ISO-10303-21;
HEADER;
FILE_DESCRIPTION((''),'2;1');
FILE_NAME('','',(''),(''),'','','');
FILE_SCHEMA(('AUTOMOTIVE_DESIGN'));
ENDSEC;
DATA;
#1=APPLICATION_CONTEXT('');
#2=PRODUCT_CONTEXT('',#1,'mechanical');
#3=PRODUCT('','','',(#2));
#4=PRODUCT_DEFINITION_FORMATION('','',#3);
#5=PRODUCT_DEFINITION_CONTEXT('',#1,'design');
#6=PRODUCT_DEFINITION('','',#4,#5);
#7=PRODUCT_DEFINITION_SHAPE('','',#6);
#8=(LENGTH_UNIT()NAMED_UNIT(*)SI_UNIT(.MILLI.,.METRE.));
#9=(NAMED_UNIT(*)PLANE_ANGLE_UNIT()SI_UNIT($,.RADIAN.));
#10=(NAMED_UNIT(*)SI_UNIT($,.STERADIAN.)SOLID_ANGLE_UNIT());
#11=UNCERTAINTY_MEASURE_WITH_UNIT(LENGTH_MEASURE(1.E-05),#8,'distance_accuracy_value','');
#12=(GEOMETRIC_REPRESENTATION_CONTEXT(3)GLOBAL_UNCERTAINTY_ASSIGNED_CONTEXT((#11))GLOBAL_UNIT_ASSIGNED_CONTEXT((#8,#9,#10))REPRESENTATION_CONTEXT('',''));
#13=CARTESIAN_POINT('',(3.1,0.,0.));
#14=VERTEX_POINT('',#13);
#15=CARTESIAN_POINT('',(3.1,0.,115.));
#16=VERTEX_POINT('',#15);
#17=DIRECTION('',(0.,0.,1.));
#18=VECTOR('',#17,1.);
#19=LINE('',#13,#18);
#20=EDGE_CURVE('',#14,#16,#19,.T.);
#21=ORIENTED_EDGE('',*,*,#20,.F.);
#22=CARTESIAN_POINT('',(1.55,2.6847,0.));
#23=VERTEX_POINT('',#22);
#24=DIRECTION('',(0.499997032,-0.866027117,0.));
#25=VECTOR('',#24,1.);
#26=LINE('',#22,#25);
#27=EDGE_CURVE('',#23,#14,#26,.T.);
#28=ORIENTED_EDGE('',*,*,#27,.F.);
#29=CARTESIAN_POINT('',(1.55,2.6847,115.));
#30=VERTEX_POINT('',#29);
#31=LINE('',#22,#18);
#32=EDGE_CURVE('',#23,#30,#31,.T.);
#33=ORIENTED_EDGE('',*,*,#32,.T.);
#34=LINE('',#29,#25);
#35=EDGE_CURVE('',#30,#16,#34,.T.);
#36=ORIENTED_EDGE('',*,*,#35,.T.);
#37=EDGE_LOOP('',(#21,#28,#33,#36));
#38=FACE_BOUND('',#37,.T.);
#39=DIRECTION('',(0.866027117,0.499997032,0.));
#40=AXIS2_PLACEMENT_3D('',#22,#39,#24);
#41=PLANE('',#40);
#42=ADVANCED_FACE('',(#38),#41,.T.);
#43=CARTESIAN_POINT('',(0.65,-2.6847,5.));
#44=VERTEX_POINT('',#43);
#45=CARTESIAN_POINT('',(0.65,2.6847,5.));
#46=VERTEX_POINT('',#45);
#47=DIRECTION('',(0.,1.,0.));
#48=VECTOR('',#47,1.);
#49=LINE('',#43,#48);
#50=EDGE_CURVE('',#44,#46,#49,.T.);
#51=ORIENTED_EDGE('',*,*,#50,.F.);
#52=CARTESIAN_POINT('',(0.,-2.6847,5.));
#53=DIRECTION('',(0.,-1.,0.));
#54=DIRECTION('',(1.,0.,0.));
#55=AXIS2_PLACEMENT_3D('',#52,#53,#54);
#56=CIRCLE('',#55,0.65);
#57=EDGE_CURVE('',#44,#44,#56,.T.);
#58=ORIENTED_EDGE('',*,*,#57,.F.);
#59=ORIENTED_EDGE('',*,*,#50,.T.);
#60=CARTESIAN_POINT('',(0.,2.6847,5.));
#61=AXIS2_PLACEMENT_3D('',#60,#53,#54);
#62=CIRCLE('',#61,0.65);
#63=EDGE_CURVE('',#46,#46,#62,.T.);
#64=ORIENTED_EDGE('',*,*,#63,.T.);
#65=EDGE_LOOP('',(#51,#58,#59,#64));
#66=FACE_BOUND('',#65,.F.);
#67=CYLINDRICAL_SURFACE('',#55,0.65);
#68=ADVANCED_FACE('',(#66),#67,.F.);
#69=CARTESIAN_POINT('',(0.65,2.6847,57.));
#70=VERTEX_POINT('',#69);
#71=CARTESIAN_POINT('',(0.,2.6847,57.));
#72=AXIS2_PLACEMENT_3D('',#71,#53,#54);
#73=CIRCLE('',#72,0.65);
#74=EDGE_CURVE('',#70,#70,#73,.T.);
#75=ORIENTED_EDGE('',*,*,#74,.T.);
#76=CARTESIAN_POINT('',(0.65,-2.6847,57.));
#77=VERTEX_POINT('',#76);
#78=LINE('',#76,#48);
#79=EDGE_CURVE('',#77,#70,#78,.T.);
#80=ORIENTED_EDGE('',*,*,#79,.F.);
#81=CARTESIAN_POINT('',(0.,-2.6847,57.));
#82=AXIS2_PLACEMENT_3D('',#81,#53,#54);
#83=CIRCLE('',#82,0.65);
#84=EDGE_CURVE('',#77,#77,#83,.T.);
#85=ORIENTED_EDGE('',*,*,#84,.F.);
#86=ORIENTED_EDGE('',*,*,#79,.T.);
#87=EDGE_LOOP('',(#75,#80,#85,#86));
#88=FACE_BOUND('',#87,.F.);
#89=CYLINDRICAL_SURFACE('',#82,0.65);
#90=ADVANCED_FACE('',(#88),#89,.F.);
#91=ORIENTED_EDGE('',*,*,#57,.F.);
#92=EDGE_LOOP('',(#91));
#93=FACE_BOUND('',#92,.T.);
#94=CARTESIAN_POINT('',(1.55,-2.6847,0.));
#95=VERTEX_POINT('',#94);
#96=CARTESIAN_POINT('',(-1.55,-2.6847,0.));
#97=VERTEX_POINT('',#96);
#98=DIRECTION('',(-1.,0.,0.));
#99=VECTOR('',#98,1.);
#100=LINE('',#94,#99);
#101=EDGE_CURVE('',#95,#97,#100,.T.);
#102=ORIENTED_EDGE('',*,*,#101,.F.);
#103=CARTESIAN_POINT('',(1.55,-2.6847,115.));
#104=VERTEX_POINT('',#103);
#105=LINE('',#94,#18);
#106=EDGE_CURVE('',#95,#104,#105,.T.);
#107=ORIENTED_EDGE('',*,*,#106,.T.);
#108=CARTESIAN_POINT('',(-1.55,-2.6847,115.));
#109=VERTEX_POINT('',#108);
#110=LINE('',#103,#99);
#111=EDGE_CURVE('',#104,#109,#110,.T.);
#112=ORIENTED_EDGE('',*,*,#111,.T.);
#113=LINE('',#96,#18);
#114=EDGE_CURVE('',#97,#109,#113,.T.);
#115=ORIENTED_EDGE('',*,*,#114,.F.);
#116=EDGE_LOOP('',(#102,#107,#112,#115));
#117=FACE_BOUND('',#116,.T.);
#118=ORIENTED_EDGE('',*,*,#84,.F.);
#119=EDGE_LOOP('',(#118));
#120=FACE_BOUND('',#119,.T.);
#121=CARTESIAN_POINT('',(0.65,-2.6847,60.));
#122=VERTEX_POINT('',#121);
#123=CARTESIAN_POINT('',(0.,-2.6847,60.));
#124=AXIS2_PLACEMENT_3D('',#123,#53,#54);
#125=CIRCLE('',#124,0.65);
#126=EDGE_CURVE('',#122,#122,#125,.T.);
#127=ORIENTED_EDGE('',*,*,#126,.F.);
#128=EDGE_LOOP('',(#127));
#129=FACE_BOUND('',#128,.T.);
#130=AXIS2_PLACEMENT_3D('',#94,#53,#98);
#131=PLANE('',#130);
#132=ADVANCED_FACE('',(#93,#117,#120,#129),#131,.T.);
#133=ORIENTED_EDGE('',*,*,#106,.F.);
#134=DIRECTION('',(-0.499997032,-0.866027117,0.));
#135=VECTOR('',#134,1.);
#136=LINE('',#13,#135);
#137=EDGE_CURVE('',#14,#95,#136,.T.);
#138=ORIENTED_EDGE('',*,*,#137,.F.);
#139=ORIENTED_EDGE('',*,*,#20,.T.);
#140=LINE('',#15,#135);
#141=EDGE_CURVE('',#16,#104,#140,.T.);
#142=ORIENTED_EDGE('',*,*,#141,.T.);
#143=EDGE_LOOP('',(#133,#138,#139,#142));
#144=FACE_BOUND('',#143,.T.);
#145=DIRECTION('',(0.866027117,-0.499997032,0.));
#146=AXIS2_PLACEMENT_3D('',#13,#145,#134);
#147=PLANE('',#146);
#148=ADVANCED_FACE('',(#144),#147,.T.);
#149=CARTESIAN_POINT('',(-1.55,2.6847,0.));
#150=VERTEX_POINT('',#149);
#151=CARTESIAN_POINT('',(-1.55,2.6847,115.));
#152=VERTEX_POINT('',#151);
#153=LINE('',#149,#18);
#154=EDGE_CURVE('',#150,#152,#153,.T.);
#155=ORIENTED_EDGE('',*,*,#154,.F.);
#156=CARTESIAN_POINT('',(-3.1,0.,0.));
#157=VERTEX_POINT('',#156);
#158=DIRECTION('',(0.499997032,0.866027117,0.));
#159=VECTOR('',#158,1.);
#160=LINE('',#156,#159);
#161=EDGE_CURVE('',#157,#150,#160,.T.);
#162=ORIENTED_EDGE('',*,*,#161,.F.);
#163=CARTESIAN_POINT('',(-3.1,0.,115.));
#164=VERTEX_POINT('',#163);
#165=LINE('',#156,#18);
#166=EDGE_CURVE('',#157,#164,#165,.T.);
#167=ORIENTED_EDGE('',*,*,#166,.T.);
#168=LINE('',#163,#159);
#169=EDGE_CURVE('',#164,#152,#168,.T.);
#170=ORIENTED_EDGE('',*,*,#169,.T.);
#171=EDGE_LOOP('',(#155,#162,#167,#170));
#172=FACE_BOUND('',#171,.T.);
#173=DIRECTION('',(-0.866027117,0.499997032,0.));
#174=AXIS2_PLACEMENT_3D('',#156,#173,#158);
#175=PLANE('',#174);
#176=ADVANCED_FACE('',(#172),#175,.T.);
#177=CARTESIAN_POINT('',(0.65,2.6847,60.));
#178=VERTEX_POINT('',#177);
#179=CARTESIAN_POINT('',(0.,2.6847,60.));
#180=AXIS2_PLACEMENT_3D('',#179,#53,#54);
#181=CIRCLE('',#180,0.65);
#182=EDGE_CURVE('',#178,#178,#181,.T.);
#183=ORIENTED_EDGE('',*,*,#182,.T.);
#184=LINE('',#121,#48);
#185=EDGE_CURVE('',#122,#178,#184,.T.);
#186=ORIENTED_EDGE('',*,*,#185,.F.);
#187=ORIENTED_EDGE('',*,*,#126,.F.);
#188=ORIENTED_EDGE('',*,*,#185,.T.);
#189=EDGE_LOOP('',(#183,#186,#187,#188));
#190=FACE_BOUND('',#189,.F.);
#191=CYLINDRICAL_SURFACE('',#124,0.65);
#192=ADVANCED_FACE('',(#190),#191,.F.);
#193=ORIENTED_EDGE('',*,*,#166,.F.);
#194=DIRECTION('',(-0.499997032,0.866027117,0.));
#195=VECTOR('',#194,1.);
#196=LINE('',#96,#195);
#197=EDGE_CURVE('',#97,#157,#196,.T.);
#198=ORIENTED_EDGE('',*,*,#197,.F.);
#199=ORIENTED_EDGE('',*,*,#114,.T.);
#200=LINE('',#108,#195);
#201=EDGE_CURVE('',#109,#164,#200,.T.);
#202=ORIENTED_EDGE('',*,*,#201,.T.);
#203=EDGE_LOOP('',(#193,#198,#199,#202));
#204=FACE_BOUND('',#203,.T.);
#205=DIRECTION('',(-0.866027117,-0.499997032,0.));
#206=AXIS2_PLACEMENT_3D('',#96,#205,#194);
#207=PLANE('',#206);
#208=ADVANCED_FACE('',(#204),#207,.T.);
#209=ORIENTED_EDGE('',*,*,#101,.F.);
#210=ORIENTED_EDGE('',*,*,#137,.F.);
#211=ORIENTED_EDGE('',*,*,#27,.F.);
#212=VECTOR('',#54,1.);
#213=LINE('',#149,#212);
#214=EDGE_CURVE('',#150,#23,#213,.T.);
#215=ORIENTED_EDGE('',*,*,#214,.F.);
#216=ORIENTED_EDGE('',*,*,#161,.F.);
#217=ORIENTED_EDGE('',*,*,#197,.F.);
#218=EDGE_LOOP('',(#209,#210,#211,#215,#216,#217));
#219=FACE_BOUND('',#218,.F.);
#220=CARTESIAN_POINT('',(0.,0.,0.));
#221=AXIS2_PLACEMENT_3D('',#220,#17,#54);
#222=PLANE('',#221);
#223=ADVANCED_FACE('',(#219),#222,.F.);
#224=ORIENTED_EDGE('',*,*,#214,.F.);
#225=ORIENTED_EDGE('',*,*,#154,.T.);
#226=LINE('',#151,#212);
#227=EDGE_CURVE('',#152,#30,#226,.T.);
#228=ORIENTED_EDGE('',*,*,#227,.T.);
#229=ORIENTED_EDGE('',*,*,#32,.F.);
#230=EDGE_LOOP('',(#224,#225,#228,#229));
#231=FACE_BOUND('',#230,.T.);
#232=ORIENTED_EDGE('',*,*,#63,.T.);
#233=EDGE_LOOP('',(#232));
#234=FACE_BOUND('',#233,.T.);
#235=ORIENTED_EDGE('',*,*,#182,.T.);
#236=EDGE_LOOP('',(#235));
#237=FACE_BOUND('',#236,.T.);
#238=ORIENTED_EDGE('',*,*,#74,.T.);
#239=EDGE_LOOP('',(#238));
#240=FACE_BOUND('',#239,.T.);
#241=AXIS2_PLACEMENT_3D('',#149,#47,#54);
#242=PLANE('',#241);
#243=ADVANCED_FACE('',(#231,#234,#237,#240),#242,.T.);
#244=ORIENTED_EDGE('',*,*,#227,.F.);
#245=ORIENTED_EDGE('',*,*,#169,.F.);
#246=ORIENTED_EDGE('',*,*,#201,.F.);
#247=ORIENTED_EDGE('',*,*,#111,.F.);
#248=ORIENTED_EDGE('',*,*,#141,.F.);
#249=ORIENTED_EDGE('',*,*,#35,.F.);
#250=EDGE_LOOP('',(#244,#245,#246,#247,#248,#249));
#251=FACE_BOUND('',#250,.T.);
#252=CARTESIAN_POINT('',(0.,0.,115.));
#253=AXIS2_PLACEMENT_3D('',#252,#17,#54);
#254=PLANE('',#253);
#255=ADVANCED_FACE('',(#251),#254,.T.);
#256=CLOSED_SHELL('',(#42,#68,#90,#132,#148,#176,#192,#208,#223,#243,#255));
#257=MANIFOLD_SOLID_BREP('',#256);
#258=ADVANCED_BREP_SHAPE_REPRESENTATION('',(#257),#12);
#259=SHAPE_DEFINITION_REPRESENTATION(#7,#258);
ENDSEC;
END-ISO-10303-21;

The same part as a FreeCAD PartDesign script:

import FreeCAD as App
import Part
import Sketcher
Q = App.Units.Quantity


def add_polygon(sketch, points):
    """Adds a closed chain of lines whose ends are joined by coincident constraints."""
    first, n = sketch.GeometryCount, len(points)
    for a, b in zip(points, points[1:] + points[:1]):
        sketch.addGeometry(Part.LineSegment(App.Vector(*a, 0), App.Vector(*b, 0)), False)
    for i in range(n):
        sketch.addConstraint(Sketcher.Constraint("Coincident", first + i, 2, first + (i + 1) % n, 1))

doc = App.newDocument("Part")
params = doc.addObject("Spreadsheet::Sheet", "Params")
for row, (alias, value) in enumerate([
    ("sketch1_width", "3.1 mm"),
    ("sketch1_length", "3.1 mm"),
    ("pad1_length", "115 mm"),
    ("sketch2_diameter", "1.3 mm"),
    ("pocket1_length", "10 mm"),
], start=1):
    params.set(f"A{row}", alias)
    params.set(f"B{row}", "=" + value)
    params.setAlias(f"B{row}", alias)

body = doc.addObject("PartDesign::Body", "Body")

# Sketch on XY plane
sketch1 = doc.addObject("Sketcher::SketchObject", "Sketch")
body.addObject(sketch1)
sketch1.AttachmentSupport = (doc.XY_Plane, [""])
sketch1.MapMode = "FlatFace"
add_polygon(sketch1, [(1.6, 2.7), (-1.6, 2.7), (-3.1, 0), (-1.6, -2.7), (1.6, -2.7), (3.1, 0)])  # lines 0-5
sketch1.addConstraint(Sketcher.Constraint("Horizontal", 0))
sketch1.addConstraint(Sketcher.Constraint("Horizontal", 3))
sketch1.addConstraint(Sketcher.Constraint("Symmetric", 0, 2, 3, 2, -1, 1))
sketch1.addConstraint(Sketcher.Constraint("Symmetric", 1, 2, 4, 2, -1, 1))
sketch1.addConstraint(Sketcher.Constraint("PointOnObject", 1, 2, -1))
sketch1.addConstraint(Sketcher.Constraint("Parallel", 2, 5))
sketch1.addConstraint(Sketcher.Constraint("Vertical", 0, 2, 2, 2))
sketch1.addConstraint(Sketcher.Constraint("DistanceX", 0, 2, 0, 1, Q("3.1 mm")))
sketch1.addConstraint(Sketcher.Constraint("Distance", 1, Q("3.1 mm")))
sketch1.addConstraint(Sketcher.Constraint("DistanceX", 1, 2, -1, 1, Q("3.1 mm")))
sketch1.setExpression("Constraints[13]", "Params.sketch1_width")
sketch1.setExpression("Constraints[14]", "Params.sketch1_length")
pad1 = doc.addObject("PartDesign::Pad", "Pad")
body.addObject(pad1)
pad1.Profile = sketch1
pad1.setExpression("Length", "Params.pad1_length")

# Sketch on XZ plane
sketch2 = doc.addObject("Sketcher::SketchObject", "Sketch001")
body.addObject(sketch2)
sketch2.AttachmentSupport = (doc.XZ_Plane, [""])
sketch2.MapMode = "FlatFace"
sketch2.AttachmentOffset = App.Placement(App.Vector(0, 0, 2.6847), App.Rotation())
sketch2.addGeometry(Part.Circle(App.Vector(0, 5, 0), App.Vector(0, 0, 1), 0.7), False)
sketch2.addGeometry(Part.Circle(App.Vector(0, 60, 0), App.Vector(0, 0, 1), 0.7), False)
sketch2.addGeometry(Part.Circle(App.Vector(0, 57, 0), App.Vector(0, 0, 1), 0.7), False)
sketch2.addConstraint(Sketcher.Constraint("Equal", 0, 1))
sketch2.addConstraint(Sketcher.Constraint("Equal", 1, 2))
sketch2.addConstraint(Sketcher.Constraint("PointOnObject", 0, 3, -2))
sketch2.addConstraint(Sketcher.Constraint("PointOnObject", 1, 3, -2))
sketch2.addConstraint(Sketcher.Constraint("PointOnObject", 2, 3, -2))
sketch2.addConstraint(Sketcher.Constraint("Diameter", 0, Q("1.3 mm")))
sketch2.addConstraint(Sketcher.Constraint("DistanceY", -1, 1, 0, 3, Q("5 mm")))
sketch2.addConstraint(Sketcher.Constraint("DistanceY", -1, 1, 1, 3, Q("60 mm")))
sketch2.addConstraint(Sketcher.Constraint("DistanceY", 2, 3, 1, 3, Q("3 mm")))
sketch2.setExpression("Constraints[5]", "Params.sketch2_diameter")
pocket1 = doc.addObject("PartDesign::Pocket", "Pocket")
body.addObject(pocket1)
pocket1.Profile = sketch2
pocket1.setExpression("Length", "Params.pocket1_length")

doc.recompute()
